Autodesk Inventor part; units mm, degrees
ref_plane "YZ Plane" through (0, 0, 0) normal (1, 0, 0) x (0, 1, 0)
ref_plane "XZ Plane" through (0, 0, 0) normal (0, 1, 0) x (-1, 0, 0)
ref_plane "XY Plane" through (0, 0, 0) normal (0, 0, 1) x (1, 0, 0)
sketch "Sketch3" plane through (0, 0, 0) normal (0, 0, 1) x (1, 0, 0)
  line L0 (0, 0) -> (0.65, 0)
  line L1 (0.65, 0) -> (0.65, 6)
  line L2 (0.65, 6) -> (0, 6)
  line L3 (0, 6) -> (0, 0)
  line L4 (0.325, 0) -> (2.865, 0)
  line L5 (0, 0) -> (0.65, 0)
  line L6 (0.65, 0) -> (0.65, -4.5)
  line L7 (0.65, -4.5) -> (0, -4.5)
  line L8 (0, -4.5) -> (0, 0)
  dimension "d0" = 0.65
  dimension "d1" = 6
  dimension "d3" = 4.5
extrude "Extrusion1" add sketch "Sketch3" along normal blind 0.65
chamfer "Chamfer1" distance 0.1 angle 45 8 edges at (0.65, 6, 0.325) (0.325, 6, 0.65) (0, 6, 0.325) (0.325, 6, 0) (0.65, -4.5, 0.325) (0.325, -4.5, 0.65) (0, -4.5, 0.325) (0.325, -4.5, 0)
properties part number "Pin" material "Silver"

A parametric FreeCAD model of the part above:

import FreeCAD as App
import Part
import Sketcher


def edges_at(feature, points):
    """Names of the edges that pass closest to the given points."""
    edges = feature.Shape.Edges
    near = lambda p: min(range(len(edges)), key=lambda i: edges[i].distToShape(Part.Vertex(*p))[0])
    return sorted({f"Edge{near(p) + 1}" for p in points})

doc = App.newDocument("Part")
body = doc.addObject("PartDesign::Body", "Body")

# Sketch on XY plane
sketch1 = body.newObject("Sketcher::SketchObject", "Sketch")
sketch1.AttachmentSupport = (doc.getObject("XY_Plane"), [""])
sketch1.MapMode = "FlatFace"
sketch1.addGeometry([
    Part.LineSegment(App.Vector(0, 6, 0), App.Vector(0, -4.5, 0)),
    Part.LineSegment(App.Vector(0, -4.5, 0), App.Vector(0.7, -4.5, 0)),
    Part.LineSegment(App.Vector(0.7, -4.5, 0), App.Vector(0.7, 6, 0)),
    Part.LineSegment(App.Vector(0.7, 6, 0), App.Vector(0, 6, 0)),
], False)
sketch1.addConstraint([
    Sketcher.Constraint("Coincident", 0, 2, 1, 1),
    Sketcher.Constraint("Coincident", 1, 2, 2, 1),
    Sketcher.Constraint("Coincident", 2, 2, 3, 1),
    Sketcher.Constraint("Coincident", 3, 2, 0, 1),
    Sketcher.Constraint("Vertical", 0),
    Sketcher.Constraint("Horizontal", 1),
    Sketcher.Constraint("Vertical", 2),
    Sketcher.Constraint("Horizontal", 3),
    Sketcher.Constraint("PointOnObject", 0, 2, -2),
    Sketcher.Constraint("DistanceY", -1, 1, 2, 2, 6.0),
    Sketcher.Constraint("DistanceX", 1, 1, 1, 2, 0.65),
    Sketcher.Constraint("DistanceY", 0, 2, -1, 1, 4.5),
])
pad1 = body.newObject("PartDesign::Pad", "Pad")
pad1.Profile = sketch1
pad1.Length = 0.65
doc.recompute()

chamfer = body.newObject("PartDesign::Chamfer", "Chamfer")
chamfer.Base = (pad1, edges_at(pad1, [
    (0.65, 6, 0.325),
    (0.325, 6, 0.65),
    (0, 6, 0.325),
    (0.325, 6, 0),
    (0.65, -4.5, 0.325),
    (0.325, -4.5, 0.65),
    (0, -4.5, 0.325),
    (0.325, -4.5, 0),
]))
chamfer.Size = 0.1

doc.recompute()
